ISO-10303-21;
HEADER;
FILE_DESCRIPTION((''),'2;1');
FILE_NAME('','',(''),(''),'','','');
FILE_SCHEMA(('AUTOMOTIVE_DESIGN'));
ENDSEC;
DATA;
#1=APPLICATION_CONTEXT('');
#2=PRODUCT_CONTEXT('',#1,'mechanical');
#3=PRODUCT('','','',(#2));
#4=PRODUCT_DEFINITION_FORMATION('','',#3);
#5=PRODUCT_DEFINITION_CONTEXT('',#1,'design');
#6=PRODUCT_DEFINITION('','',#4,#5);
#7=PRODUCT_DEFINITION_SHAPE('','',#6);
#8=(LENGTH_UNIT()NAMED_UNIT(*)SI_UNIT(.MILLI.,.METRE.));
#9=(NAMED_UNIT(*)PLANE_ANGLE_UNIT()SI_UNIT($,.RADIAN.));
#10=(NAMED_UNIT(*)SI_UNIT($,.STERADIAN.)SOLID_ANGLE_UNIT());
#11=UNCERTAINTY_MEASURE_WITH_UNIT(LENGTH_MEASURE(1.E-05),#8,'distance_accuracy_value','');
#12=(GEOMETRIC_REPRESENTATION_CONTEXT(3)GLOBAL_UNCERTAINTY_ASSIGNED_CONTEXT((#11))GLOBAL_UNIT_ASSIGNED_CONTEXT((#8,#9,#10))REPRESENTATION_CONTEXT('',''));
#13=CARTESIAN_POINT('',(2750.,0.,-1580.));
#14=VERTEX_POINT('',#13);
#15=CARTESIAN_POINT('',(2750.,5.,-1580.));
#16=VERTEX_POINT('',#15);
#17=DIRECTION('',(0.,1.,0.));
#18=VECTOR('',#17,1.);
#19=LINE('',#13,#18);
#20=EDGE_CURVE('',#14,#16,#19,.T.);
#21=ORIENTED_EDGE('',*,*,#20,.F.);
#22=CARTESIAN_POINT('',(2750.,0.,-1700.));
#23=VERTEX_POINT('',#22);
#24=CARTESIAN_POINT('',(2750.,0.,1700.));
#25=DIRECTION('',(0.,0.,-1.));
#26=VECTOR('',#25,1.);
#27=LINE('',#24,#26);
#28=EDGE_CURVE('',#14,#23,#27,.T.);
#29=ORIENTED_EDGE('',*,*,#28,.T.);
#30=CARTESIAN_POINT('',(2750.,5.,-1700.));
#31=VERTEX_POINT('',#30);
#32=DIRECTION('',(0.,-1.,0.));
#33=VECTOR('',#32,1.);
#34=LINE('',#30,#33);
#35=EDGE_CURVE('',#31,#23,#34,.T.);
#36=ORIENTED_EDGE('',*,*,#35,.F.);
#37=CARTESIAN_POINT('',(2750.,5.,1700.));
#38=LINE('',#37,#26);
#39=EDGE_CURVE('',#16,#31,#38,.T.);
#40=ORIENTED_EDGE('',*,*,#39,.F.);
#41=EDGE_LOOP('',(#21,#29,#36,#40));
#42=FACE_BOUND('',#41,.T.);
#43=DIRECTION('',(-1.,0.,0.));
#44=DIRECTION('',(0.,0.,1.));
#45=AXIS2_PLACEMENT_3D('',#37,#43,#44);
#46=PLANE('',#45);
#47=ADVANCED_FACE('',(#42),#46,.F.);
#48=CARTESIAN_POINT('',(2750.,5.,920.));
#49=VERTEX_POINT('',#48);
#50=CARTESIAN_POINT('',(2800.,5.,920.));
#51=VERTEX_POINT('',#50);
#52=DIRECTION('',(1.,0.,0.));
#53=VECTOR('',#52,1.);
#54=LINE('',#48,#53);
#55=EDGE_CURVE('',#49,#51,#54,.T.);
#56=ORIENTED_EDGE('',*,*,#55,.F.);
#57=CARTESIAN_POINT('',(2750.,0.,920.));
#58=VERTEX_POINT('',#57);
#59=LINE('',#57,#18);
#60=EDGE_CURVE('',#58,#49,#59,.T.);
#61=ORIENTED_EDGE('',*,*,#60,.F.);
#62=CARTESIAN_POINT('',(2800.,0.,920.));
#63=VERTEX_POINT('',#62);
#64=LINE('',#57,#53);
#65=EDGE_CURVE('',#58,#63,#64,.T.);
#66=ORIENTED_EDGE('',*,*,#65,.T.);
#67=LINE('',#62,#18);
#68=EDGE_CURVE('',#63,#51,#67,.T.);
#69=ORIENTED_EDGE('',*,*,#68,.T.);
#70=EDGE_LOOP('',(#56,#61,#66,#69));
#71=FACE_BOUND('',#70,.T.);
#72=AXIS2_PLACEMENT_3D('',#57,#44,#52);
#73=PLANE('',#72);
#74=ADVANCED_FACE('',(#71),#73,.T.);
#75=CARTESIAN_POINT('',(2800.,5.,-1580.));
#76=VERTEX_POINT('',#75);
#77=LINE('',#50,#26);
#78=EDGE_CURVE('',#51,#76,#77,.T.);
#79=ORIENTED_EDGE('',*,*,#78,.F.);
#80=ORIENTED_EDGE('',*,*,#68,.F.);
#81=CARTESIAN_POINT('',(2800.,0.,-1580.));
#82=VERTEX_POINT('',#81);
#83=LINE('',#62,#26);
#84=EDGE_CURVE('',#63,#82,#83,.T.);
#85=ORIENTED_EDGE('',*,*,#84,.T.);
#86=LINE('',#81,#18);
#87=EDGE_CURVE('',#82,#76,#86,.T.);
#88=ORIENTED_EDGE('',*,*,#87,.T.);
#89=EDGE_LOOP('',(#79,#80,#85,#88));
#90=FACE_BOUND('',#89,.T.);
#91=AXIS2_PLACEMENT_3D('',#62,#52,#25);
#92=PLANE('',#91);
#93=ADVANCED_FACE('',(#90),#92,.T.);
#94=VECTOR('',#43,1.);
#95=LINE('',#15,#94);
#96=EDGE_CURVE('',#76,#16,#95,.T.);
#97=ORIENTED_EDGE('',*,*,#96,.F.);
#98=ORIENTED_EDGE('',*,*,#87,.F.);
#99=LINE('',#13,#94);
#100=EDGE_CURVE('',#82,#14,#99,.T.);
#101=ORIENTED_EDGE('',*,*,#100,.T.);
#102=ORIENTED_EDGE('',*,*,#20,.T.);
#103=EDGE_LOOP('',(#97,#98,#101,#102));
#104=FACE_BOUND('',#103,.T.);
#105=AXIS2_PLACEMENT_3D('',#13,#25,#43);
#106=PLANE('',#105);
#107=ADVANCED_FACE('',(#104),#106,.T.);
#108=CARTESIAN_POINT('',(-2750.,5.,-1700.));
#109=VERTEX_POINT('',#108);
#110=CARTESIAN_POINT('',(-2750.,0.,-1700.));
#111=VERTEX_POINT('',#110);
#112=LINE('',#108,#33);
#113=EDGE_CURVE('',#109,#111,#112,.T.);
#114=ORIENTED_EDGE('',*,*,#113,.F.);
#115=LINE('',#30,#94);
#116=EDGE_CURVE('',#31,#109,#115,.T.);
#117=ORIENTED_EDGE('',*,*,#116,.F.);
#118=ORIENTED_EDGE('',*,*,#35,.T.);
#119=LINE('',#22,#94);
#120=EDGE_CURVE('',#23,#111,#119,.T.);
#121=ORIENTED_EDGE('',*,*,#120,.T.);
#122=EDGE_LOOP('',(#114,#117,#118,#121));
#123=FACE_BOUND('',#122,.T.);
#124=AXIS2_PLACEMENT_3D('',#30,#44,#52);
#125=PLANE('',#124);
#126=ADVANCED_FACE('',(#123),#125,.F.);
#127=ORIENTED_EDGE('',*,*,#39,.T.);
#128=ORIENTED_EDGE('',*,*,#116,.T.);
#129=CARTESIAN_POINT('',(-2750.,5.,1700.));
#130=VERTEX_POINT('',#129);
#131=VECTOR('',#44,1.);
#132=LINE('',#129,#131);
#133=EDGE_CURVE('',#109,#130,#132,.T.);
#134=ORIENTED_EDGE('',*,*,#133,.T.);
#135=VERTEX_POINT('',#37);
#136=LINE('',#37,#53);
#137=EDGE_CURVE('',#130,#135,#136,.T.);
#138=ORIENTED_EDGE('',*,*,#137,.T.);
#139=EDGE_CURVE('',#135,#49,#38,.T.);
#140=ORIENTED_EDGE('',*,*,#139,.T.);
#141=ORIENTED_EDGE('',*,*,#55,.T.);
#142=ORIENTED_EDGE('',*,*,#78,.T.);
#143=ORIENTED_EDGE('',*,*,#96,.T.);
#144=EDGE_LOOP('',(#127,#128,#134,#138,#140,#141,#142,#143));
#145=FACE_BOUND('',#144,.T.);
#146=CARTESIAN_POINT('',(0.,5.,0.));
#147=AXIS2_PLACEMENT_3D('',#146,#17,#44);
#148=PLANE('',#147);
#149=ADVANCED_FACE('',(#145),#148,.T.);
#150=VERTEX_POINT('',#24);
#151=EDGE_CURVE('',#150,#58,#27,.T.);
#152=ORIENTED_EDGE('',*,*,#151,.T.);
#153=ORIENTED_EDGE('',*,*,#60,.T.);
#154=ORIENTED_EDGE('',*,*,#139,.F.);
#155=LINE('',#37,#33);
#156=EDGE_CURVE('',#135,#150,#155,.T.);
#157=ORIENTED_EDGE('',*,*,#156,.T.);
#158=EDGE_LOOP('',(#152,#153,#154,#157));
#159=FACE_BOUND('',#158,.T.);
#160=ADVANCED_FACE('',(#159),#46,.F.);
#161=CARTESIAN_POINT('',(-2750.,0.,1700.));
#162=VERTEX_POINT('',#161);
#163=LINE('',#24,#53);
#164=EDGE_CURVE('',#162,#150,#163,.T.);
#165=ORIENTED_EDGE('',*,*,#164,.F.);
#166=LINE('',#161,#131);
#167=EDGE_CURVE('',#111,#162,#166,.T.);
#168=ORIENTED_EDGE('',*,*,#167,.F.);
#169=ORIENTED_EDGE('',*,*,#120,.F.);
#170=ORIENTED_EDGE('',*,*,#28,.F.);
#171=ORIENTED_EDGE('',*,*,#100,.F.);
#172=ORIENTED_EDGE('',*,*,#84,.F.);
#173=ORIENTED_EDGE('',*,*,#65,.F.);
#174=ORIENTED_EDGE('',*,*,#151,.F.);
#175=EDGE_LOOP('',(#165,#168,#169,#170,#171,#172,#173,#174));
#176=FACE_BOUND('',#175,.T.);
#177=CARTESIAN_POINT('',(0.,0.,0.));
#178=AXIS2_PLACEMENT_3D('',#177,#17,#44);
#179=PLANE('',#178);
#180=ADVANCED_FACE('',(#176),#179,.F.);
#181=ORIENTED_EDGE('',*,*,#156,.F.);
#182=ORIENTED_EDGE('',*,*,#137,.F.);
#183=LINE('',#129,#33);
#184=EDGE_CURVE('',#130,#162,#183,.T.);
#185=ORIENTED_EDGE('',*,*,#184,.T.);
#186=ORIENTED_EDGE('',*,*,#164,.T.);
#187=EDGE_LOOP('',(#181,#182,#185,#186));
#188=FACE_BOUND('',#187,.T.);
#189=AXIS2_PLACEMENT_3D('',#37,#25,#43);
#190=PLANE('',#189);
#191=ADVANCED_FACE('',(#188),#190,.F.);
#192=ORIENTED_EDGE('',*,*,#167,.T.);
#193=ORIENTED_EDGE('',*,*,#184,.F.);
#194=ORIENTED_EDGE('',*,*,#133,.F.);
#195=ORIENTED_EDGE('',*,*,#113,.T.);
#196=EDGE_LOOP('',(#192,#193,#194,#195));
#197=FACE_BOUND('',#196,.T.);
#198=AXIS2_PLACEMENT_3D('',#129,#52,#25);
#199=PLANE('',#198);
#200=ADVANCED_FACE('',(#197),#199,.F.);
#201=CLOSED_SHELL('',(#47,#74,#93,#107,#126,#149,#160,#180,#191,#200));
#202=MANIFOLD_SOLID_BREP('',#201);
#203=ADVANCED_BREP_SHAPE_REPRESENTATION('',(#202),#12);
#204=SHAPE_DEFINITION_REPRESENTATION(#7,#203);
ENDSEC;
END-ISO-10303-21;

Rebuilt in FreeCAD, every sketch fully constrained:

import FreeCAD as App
import Part
import Sketcher
from FreeCAD import Vector
Q = App.Units.Quantity

doc = App.newDocument("Part")
body = doc.addObject("PartDesign::Body", "Body")

# Sketch on XZ plane
sketch1 = doc.addObject("Sketcher::SketchObject", "Sketch")
body.addObject(sketch1)
sketch1.AttachmentSupport = (doc.XZ_Plane, [""])
sketch1.MapMode = "FlatFace"
sketch1.addGeometry([
    Part.LineSegment(Vector(-2750, -1700, 0), Vector(-2750, 1700, 0)),
    Part.LineSegment(Vector(-2750, 1700, 0), Vector(2750, 1700, 0)),
    Part.LineSegment(Vector(2750, 1700, 0), Vector(2750, -1700, 0)),
    Part.LineSegment(Vector(2750, -1700, 0), Vector(-2750, -1700, 0)),
], False)
sketch1.addConstraint([
    Sketcher.Constraint("Coincident", 0, 2, 1, 1),
    Sketcher.Constraint("Coincident", 1, 2, 2, 1),
    Sketcher.Constraint("Coincident", 2, 2, 3, 1),
    Sketcher.Constraint("Coincident", 3, 2, 0, 1),
    Sketcher.Constraint("Vertical", 0),
    Sketcher.Constraint("Horizontal", 1),
    Sketcher.Constraint("Vertical", 2),
    Sketcher.Constraint("Horizontal", 3),
    Sketcher.Constraint("Symmetric", 0, 2, 2, 2, -1, 1),
    Sketcher.Constraint("DistanceX", 1, 1, 1, 2, Q("5500 mm")),
    Sketcher.Constraint("DistanceY", 0, 1, 0, 2, Q("3400 mm")),
])
pad1 = doc.addObject("PartDesign::Pad", "Pad")
body.addObject(pad1)
pad1.Profile = sketch1
pad1.Length = 5
pad1.Reversed = True

# Sketch on XZ plane
sketch2 = doc.addObject("Sketcher::SketchObject", "Sketch001")
body.addObject(sketch2)
sketch2.AttachmentSupport = (doc.XZ_Plane, [""])
sketch2.MapMode = "FlatFace"
sketch2.AttachmentOffset = App.Placement(Vector(0, 0, -5), App.Rotation())
sketch2.addGeometry([
    Part.LineSegment(Vector(2750, -1580, 0), Vector(2750, 920, 0)),
    Part.LineSegment(Vector(2750, 920, 0), Vector(2800, 920, 0)),
    Part.LineSegment(Vector(2800, 920, 0), Vector(2800, -1580, 0)),
    Part.LineSegment(Vector(2800, -1580, 0), Vector(2750, -1580, 0)),
], False)
sketch2.addConstraint([
    Sketcher.Constraint("Coincident", 0, 2, 1, 1),
    Sketcher.Constraint("Coincident", 1, 2, 2, 1),
    Sketcher.Constraint("Coincident", 2, 2, 3, 1),
    Sketcher.Constraint("Coincident", 3, 2, 0, 1),
    Sketcher.Constraint("Vertical", 0),
    Sketcher.Constraint("Horizontal", 1),
    Sketcher.Constraint("Vertical", 2),
    Sketcher.Constraint("Horizontal", 3),
    Sketcher.Constraint("DistanceX", 1, 1, 1, 2, Q("50 mm")),
    Sketcher.Constraint("DistanceY", 0, 1, 0, 2, Q("2500 mm")),
    Sketcher.Constraint("DistanceX", -1, 1, 0, 2, Q("2750 mm")),
    Sketcher.Constraint("DistanceY", -1, 1, 0, 2, Q("920 mm")),
])
pad2 = doc.addObject("PartDesign::Pad", "Pad001")
body.addObject(pad2)
pad2.Profile = sketch2
pad2.Length = 5

doc.recompute()
